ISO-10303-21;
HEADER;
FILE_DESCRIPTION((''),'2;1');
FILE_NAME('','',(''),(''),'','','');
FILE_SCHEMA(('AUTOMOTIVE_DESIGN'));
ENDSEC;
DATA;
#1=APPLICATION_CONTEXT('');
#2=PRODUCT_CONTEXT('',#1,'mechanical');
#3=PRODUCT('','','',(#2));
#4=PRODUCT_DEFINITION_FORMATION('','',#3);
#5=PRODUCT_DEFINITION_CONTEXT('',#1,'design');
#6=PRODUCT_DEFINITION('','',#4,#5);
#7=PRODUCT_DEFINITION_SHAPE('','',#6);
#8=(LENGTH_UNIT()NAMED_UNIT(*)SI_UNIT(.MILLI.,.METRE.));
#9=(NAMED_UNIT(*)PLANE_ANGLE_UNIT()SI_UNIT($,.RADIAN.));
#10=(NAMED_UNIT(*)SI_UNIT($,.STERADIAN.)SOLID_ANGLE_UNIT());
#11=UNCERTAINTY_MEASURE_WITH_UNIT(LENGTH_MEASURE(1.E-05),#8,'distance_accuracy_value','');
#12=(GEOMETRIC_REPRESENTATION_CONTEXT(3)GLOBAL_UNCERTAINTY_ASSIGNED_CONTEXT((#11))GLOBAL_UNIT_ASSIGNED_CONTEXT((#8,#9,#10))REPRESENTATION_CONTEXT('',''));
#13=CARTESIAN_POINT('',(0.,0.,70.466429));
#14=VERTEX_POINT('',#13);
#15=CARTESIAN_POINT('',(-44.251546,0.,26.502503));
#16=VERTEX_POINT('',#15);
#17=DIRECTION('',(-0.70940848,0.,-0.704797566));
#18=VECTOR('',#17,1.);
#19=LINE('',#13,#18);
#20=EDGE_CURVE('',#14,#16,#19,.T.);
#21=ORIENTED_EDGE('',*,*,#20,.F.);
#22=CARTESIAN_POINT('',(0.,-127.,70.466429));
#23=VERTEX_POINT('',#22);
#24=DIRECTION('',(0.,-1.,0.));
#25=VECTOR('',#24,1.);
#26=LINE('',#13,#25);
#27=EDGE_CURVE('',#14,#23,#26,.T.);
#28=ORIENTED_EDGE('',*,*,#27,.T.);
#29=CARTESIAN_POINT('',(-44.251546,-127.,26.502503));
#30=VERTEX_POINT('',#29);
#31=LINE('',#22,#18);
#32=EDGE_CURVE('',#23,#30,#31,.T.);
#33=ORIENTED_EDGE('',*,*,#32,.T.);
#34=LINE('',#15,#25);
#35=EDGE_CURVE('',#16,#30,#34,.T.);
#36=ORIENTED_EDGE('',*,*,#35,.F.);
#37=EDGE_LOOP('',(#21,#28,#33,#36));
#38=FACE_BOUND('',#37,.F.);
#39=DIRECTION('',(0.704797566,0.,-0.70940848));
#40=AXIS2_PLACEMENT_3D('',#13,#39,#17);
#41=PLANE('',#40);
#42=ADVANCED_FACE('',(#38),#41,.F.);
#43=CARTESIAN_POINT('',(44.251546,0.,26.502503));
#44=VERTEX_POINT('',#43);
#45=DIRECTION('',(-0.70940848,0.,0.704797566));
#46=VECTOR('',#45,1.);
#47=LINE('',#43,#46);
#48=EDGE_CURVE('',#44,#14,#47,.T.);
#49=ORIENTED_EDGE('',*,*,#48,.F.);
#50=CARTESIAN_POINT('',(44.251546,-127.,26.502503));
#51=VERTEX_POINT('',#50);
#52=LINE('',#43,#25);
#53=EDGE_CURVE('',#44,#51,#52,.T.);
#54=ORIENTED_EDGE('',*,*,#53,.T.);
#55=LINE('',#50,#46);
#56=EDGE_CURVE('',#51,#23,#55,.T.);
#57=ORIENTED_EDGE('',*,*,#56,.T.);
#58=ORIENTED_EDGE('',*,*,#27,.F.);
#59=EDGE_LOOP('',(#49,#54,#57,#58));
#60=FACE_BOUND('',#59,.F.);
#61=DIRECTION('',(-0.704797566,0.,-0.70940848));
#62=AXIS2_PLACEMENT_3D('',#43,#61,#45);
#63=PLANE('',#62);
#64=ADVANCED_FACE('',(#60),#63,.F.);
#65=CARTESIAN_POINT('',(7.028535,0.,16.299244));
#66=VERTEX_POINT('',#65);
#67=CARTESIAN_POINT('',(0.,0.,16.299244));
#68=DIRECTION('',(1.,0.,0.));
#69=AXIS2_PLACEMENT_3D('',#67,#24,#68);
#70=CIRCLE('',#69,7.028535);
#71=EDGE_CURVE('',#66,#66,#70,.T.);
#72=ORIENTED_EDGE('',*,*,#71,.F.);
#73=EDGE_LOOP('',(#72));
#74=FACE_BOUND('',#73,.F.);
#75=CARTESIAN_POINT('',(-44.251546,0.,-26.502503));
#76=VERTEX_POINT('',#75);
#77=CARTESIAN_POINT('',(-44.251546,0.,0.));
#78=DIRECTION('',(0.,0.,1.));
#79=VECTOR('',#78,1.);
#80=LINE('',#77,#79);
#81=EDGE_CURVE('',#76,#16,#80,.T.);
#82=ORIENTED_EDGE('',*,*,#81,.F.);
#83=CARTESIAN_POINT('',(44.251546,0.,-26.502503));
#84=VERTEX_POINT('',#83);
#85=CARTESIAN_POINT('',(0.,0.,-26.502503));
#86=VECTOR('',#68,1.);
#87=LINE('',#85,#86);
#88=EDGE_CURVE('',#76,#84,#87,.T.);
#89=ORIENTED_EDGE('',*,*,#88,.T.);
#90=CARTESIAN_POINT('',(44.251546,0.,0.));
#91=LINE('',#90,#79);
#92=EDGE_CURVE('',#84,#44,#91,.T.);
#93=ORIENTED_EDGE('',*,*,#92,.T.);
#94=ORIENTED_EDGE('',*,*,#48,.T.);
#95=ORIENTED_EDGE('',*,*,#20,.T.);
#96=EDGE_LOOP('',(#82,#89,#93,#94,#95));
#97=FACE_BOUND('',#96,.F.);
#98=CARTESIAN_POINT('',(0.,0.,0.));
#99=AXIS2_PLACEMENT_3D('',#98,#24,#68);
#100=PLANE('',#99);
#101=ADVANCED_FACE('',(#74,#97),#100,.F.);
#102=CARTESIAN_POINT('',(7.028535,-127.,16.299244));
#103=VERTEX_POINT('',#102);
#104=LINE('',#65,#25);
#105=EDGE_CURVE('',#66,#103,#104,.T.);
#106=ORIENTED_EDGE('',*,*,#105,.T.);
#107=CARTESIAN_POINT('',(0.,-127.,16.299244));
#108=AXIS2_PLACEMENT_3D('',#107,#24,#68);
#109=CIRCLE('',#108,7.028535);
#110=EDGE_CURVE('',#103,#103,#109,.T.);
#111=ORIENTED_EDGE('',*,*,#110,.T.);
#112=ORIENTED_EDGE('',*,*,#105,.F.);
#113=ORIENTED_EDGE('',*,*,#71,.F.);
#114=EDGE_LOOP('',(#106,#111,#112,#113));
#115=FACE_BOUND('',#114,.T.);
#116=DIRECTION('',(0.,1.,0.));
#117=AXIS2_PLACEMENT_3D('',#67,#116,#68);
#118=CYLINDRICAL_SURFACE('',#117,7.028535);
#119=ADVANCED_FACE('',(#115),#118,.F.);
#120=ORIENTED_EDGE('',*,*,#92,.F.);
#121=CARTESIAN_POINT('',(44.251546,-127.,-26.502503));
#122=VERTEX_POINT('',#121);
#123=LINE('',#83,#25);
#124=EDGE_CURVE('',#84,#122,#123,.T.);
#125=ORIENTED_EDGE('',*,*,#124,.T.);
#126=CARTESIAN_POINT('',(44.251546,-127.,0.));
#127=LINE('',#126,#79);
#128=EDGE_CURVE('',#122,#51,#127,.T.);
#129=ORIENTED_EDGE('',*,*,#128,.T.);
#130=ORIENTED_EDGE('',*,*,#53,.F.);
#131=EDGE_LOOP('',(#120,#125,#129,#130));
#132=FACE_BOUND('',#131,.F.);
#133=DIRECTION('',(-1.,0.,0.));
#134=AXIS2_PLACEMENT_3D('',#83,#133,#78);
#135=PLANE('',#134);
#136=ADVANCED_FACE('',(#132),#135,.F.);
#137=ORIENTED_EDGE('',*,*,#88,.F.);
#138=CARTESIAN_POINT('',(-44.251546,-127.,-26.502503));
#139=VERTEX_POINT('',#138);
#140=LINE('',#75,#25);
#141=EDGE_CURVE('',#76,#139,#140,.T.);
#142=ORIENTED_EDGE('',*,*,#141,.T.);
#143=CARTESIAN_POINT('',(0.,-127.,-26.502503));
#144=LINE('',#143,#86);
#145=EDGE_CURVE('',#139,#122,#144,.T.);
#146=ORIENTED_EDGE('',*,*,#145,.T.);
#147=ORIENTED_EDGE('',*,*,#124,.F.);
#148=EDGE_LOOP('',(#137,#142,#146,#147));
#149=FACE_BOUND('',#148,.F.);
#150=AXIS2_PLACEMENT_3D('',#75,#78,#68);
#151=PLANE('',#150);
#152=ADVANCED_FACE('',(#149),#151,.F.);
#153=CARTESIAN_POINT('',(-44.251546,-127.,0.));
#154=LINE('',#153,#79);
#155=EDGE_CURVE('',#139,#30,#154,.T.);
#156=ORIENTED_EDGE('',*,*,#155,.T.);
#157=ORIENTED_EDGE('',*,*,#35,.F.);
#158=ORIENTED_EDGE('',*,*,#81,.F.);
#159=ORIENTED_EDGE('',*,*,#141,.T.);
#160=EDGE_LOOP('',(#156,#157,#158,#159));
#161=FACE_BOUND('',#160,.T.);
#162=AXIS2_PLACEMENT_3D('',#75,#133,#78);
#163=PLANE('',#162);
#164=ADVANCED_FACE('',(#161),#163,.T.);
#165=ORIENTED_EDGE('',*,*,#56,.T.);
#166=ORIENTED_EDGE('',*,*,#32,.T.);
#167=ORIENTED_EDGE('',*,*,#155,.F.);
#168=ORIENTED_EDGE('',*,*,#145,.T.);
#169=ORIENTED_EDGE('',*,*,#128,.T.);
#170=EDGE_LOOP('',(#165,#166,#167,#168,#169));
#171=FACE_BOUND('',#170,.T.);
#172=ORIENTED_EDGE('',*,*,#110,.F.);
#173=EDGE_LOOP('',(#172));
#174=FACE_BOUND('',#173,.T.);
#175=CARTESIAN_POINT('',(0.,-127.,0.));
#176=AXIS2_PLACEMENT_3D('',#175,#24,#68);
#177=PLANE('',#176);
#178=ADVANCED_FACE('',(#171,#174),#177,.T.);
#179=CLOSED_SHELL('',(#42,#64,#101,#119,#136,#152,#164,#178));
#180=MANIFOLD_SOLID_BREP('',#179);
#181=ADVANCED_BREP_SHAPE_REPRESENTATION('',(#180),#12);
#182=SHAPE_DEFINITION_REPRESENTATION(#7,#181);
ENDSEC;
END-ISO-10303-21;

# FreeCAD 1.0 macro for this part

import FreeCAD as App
import Part
import Sketcher
Q = App.Units.Quantity


def add_polygon(sketch, points):
    """Adds a closed chain of lines whose ends are joined by coincident constraints."""
    first, n = sketch.GeometryCount, len(points)
    for a, b in zip(points, points[1:] + points[:1]):
        sketch.addGeometry(Part.LineSegment(App.Vector(*a, 0), App.Vector(*b, 0)), False)
    for i in range(n):
        sketch.addConstraint(Sketcher.Constraint("Coincident", first + i, 2, first + (i + 1) % n, 1))

doc = App.newDocument("Part")
params = doc.addObject("Spreadsheet::Sheet", "Params")
for row, (alias, value) in enumerate([
    ("pad1_length", "5 in"),
], start=1):
    params.set(f"A{row}", alias)
    params.set(f"B{row}", "=" + value)
    params.setAlias(f"B{row}", alias)

body = doc.addObject("PartDesign::Body", "Body")

sketch1 = body.newObject("Sketcher::SketchObject", "Sketch")
sketch1.AttachmentSupport = (doc.getObject("XZ_Plane"), [""])
sketch1.MapMode = "FlatFace"
add_polygon(sketch1, [(-44, 27), (-44, -27), (44, -27), (44, 27), (0, 70)])
sketch1.addGeometry(Part.Circle(App.Vector(0, 16, 0), App.Vector(0, 0, 1), 7), False)
sketch1.addConstraint([
    Sketcher.Constraint("Vertical", 0),
    Sketcher.Constraint("Horizontal", 1),
    Sketcher.Constraint("Vertical", 2),
    Sketcher.Constraint("Symmetric", 0, 2, 2, 2, -1, 1),
    Sketcher.Constraint("PointOnObject", 5, 3, -2),
    Sketcher.Constraint("PointOnObject", 3, 2, -2),
    Sketcher.Constraint("Horizontal", 2, 2, 4, 2),
    Sketcher.Constraint("Diameter", 5, Q("14.05707 mm")),
    Sketcher.Constraint("DistanceX", 1, 1, 1, 2, Q("88.503092 mm")),
    Sketcher.Constraint("Distance", 3, Q("62.37809 mm")),
    Sketcher.Constraint("DistanceY", 0, 2, 0, 1, Q("53.005006 mm")),
    Sketcher.Constraint("DistanceY", 5, 3, 2, 2, Q("10.203259 mm")),
])
pad1 = body.newObject("PartDesign::Pad", "Pad")
pad1.Profile = sketch1
pad1.setExpression("Length", "Params.pad1_length")

doc.recompute()
